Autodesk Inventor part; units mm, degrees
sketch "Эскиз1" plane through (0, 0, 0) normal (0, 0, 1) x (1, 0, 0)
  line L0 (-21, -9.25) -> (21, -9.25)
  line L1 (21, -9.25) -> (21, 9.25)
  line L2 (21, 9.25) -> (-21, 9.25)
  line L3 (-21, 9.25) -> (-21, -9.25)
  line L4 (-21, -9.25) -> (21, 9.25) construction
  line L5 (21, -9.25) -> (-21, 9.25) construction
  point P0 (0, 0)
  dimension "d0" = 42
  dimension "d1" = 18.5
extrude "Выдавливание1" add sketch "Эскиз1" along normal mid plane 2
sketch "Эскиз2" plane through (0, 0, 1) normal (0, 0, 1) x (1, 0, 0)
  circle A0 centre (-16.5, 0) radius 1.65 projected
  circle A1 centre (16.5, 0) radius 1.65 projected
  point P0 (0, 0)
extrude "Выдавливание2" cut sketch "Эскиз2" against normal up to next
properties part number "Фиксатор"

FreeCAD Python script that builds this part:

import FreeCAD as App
import Part
import Sketcher
Q = App.Units.Quantity


def add_polygon(sketch, points):
    """Adds a closed chain of lines whose ends are joined by coincident constraints."""
    first, n = sketch.GeometryCount, len(points)
    for a, b in zip(points, points[1:] + points[:1]):
        sketch.addGeometry(Part.LineSegment(App.Vector(*a, 0), App.Vector(*b, 0)), False)
    for i in range(n):
        sketch.addConstraint(Sketcher.Constraint("Coincident", first + i, 2, first + (i + 1) % n, 1))

doc = App.newDocument("Part")
body = doc.addObject("PartDesign::Body", "Body")

# Sketch on XY plane
sketch1 = doc.addObject("Sketcher::SketchObject", "Sketch")
body.addObject(sketch1)
sketch1.AttachmentSupport = (doc.XY_Plane, [""])
sketch1.MapMode = "FlatFace"
add_polygon(sketch1, [(-21, 9.25), (-21, -9.25), (21, -9.25), (21, 9.25)])  # lines 0-3
sketch1.addConstraint([
    Sketcher.Constraint("Vertical", 0),
    Sketcher.Constraint("Horizontal", 1),
    Sketcher.Constraint("Vertical", 2),
    Sketcher.Constraint("Horizontal", 3),
    Sketcher.Constraint("Symmetric", 0, 2, 2, 2, -1, 1),
    Sketcher.Constraint("DistanceX", 1, 1, 1, 2, Q("42 mm")),
    Sketcher.Constraint("DistanceY", 0, 2, 0, 1, Q("18.5 mm")),
])
pad1 = doc.addObject("PartDesign::Pad", "Pad")
body.addObject(pad1)
pad1.Profile = sketch1
pad1.Length = 2
pad1.Midplane = True

# Sketch on XY plane
sketch2 = doc.addObject("Sketcher::SketchObject", "Sketch001")
body.addObject(sketch2)
sketch2.AttachmentSupport = (doc.XY_Plane, [""])
sketch2.MapMode = "FlatFace"
sketch2.AttachmentOffset = App.Placement(App.Vector(0, 0, 1), App.Rotation())
sketch2.addGeometry([
    Part.Circle(App.Vector(-16.5, 0, 0), App.Vector(0, 0, 1), 1.65),
    Part.Circle(App.Vector(16.5, 0, 0), App.Vector(0, 0, 1), 1.65),
], False)
sketch2.addConstraint([
    Sketcher.Constraint("Equal", 0, 1),
    Sketcher.Constraint("Symmetric", 0, 3, 1, 3, -1, 1),
    Sketcher.Constraint("PointOnObject", 0, 3, -1),
    Sketcher.Constraint("Diameter", 0, Q("3.3 mm")),
    Sketcher.Constraint("DistanceX", 0, 3, 1, 3, Q("33 mm")),
])
pocket1 = doc.addObject("PartDesign::Pocket", "Pocket")
body.addObject(pocket1)
pocket1.Profile = sketch2
pocket1.Type = "UpToFirst"

doc.recompute()
